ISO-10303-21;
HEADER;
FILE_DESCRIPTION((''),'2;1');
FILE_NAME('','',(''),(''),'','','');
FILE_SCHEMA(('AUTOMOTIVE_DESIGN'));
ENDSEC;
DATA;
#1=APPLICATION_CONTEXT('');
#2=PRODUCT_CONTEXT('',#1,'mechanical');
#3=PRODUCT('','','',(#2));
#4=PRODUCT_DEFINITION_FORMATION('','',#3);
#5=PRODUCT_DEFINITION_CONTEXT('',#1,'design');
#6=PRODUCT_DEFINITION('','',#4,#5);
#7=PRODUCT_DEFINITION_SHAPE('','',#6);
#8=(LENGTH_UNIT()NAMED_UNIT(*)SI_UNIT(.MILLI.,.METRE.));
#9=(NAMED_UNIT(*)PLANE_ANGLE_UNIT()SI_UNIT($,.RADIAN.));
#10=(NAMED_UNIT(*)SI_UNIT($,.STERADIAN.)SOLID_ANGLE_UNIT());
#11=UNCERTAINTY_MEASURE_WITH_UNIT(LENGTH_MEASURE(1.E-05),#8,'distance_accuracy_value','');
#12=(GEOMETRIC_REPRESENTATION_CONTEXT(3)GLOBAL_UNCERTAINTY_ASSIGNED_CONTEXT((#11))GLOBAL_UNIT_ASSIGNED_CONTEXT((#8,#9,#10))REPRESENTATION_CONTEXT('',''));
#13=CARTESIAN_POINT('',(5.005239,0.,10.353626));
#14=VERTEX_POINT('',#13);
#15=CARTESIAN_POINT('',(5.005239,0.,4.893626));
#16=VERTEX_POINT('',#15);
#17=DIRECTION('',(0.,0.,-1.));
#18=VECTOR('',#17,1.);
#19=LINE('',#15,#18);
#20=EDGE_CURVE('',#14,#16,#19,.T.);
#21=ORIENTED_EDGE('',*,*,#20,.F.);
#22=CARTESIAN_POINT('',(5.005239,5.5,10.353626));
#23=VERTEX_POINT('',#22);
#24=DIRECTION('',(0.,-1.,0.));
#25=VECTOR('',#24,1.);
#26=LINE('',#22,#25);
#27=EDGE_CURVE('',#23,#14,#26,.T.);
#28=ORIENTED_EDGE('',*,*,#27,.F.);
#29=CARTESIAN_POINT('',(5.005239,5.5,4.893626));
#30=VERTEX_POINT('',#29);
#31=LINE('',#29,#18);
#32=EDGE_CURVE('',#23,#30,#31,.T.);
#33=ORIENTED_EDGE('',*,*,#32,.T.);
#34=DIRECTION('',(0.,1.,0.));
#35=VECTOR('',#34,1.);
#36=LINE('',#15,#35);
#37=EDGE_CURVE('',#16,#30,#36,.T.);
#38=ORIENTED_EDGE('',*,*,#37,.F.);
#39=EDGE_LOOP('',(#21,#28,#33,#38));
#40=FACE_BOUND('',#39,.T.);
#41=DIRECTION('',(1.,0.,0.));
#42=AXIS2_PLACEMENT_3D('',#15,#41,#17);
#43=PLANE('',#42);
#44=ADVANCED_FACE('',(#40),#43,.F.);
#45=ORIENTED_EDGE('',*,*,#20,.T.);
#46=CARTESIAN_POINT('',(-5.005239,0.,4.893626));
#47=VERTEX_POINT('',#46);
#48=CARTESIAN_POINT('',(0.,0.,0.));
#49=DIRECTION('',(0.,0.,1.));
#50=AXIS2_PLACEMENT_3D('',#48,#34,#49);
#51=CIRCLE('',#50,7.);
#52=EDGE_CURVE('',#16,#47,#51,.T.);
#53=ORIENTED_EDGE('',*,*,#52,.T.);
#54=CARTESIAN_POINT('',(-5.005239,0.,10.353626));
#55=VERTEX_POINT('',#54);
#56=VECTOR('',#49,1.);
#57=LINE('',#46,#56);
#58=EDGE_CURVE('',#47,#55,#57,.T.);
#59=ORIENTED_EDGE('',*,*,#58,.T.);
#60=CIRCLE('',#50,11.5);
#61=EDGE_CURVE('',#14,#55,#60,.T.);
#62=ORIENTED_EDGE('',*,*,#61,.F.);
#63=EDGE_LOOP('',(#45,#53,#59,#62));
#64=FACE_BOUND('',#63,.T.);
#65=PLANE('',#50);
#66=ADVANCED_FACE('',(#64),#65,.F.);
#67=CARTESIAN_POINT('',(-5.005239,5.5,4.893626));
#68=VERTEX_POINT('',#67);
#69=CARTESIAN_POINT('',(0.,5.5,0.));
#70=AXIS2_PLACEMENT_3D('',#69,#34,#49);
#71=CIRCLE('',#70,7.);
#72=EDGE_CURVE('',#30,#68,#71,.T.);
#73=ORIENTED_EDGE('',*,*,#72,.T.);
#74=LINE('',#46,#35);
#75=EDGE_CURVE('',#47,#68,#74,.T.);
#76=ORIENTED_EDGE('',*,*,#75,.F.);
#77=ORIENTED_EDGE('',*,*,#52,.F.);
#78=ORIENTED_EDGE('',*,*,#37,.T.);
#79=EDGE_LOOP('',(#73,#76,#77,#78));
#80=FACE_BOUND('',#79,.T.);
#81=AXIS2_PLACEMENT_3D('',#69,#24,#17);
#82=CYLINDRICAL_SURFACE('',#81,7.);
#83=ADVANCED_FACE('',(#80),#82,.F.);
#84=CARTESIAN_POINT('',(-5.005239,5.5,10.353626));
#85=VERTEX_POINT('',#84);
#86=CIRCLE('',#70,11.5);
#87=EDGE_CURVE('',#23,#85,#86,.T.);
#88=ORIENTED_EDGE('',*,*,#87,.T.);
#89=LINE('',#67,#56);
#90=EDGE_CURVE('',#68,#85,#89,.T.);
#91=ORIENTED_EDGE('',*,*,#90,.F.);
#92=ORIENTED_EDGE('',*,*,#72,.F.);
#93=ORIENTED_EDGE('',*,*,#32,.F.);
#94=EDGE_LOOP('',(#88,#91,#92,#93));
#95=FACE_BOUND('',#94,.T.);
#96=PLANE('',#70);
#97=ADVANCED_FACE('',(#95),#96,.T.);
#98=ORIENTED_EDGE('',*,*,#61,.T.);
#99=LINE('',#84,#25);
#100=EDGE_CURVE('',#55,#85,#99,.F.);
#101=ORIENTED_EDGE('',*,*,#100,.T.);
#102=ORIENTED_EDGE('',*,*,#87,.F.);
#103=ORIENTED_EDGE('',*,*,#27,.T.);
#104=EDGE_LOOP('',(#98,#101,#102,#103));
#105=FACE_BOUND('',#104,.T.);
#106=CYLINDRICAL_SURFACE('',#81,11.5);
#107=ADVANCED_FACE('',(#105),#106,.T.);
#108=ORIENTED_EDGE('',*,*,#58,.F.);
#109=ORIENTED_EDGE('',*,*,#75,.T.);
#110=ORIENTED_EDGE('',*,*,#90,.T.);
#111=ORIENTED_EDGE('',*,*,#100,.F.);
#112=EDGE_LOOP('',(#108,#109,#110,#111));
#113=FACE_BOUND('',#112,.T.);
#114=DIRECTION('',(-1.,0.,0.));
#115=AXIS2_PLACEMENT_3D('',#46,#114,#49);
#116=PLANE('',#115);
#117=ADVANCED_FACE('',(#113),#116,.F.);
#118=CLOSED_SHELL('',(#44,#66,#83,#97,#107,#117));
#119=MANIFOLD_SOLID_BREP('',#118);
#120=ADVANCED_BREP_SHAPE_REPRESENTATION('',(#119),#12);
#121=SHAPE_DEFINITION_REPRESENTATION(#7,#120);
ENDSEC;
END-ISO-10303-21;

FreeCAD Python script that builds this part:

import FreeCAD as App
import Part
import Sketcher

V = App.Vector
Q = App.Units.Quantity

doc = App.newDocument("Part")
body = doc.addObject("PartDesign::Body", "Body")

sketch1 = body.newObject("Sketcher::SketchObject", "Sketch")
sketch1.AttachmentSupport = (doc.getObject("XZ_Plane"), [""])
sketch1.MapMode = "FlatFace"
sketch1.addGeometry([
    Part.Circle(V(0, 0, 0), V(0, 0, 1), 12),
    Part.Circle(V(0, 0, 0), V(0, 0, 1), 7),
], False)
sketch1.addConstraint([
    Sketcher.Constraint("Coincident", 0, 3, -1, 1),
    Sketcher.Constraint("Coincident", 1, 3, -1, 1),
    Sketcher.Constraint("Diameter", 0, Q("23 mm")),
    Sketcher.Constraint("Diameter", 1, Q("14 mm")),
])
pad1 = body.newObject("PartDesign::Pad", "Pad")
pad1.Profile = sketch1
pad1.Length = 5.5
pad1.Reversed = True

sketch2 = body.newObject("Sketcher::SketchObject", "Sketch001")
sketch2.AttachmentSupport = (doc.getObject("XZ_Plane"), [""])
sketch2.MapMode = "FlatFace"
sketch2.AttachmentOffset = App.Placement(V(0, 0, -5.5), App.Rotation())
sketch2.addGeometry([
    Part.LineSegment(V(-5, 5, 0), V(-5, 12, 0)),
    Part.LineSegment(V(-5, 12, 0), V(5, 12, 0)),
    Part.LineSegment(V(5, 12, 0), V(5, 5, 0)),
    Part.LineSegment(V(5, 5, 0), V(-5, 5, 0)),
], False)
sketch2.addConstraint([
    Sketcher.Constraint("Coincident", 0, 2, 1, 1),
    Sketcher.Constraint("Coincident", 1, 2, 2, 1),
    Sketcher.Constraint("Coincident", 2, 2, 3, 1),
    Sketcher.Constraint("Coincident", 3, 2, 0, 1),
    Sketcher.Constraint("Vertical", 0),
    Sketcher.Constraint("Horizontal", 1),
    Sketcher.Constraint("Vertical", 2),
    Sketcher.Constraint("Horizontal", 3),
    Sketcher.Constraint("DistanceY", -1, 1, 0, 2, Q("11.5 mm")),
    Sketcher.Constraint("DistanceX", 1, 1, 1, 2, Q("10.010479 mm")),
    Sketcher.Constraint("DistanceY", 0, 1, 0, 2, Q("6.606374 mm")),
    Sketcher.Constraint("DistanceX", 0, 2, -1, 1, Q("5.005239 mm")),
])
pocket1 = body.newObject("PartDesign::Pocket", "Pocket")
pocket1.Profile = sketch2
pocket1.Type = "ThroughAll"
pocket1.Reversed = True

doc.recompute()
